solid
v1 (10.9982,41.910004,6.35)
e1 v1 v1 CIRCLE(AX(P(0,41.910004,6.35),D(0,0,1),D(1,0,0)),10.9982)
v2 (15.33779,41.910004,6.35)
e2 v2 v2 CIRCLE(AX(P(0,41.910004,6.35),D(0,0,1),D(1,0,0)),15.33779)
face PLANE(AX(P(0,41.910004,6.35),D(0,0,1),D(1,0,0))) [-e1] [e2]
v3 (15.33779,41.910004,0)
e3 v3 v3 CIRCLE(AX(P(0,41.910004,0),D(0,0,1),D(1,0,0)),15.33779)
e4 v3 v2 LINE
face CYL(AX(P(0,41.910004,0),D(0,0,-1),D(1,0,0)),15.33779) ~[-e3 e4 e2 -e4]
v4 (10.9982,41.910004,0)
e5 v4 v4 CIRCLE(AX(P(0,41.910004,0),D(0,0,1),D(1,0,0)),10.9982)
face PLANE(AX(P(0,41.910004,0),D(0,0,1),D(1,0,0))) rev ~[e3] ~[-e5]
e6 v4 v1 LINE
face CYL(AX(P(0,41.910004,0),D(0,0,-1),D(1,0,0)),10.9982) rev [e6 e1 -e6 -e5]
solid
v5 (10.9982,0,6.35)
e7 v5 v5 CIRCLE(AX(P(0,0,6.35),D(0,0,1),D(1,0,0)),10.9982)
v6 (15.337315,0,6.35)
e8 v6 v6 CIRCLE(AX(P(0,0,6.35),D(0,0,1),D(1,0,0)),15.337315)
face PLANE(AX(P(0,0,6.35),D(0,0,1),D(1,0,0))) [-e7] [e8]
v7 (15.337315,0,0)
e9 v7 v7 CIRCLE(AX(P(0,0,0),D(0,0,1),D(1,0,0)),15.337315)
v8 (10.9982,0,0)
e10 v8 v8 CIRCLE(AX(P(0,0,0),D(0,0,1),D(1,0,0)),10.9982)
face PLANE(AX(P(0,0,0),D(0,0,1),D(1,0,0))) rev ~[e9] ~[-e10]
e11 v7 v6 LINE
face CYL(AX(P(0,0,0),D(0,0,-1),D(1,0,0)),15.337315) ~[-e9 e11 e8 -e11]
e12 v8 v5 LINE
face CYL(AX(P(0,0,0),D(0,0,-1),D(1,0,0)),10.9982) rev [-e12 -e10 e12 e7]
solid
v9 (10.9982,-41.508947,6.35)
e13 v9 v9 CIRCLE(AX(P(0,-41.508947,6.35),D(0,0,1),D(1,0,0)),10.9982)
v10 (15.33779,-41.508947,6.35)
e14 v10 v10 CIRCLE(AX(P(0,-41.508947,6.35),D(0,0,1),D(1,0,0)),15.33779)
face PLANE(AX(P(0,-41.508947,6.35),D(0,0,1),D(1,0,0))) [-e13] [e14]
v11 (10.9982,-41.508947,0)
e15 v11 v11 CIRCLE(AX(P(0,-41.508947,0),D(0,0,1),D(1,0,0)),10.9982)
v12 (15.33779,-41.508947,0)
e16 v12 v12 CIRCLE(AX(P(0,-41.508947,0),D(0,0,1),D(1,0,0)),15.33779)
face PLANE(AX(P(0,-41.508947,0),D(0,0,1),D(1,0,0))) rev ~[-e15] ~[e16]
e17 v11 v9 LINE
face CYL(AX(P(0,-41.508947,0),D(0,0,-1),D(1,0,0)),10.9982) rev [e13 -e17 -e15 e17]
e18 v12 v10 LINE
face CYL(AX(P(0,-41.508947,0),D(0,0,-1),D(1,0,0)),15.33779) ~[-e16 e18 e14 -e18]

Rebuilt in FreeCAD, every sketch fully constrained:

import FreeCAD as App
import Part
import Sketcher

V = App.Vector
Q = App.Units.Quantity

doc = App.newDocument("Part")
body = doc.addObject("PartDesign::Body", "Body")
body.AllowCompound = True

# Sketch on XY plane
sketch1 = doc.addObject("Sketcher::SketchObject", "Sketch")
body.addObject(sketch1)
sketch1.AttachmentSupport = (doc.XY_Plane, [""])
sketch1.MapMode = "FlatFace"
sketch1.addGeometry(Part.Circle(V(0, 0, 0), V(0, 0, 1), 15), False)
sketch1.addGeometry(Part.Circle(V(0, 0, 0), V(0, 0, 1), 11), False)
sketch1.addGeometry(Part.Circle(V(0, 42, 0), V(0, 0, 1), 15), False)
sketch1.addGeometry(Part.Circle(V(0, 42, 0), V(0, 0, 1), 11), False)
sketch1.addGeometry(Part.Circle(V(0, -42, 0), V(0, 0, 1), 15), False)
sketch1.addGeometry(Part.Circle(V(0, -42, 0), V(0, 0, 1), 11), False)
sketch1.addConstraint(Sketcher.Constraint("Coincident", 0, 3, -1, 1))
sketch1.addConstraint(Sketcher.Constraint("Coincident", 1, 3, -1, 1))
sketch1.addConstraint(Sketcher.Constraint("Coincident", 3, 3, 2, 3))
sketch1.addConstraint(Sketcher.Constraint("Coincident", 5, 3, 4, 3))
sketch1.addConstraint(Sketcher.Constraint("Equal", 1, 3))
sketch1.addConstraint(Sketcher.Constraint("Equal", 2, 4))
sketch1.addConstraint(Sketcher.Constraint("Equal", 3, 5))
sketch1.addConstraint(Sketcher.Constraint("PointOnObject", 2, 3, -2))
sketch1.addConstraint(Sketcher.Constraint("PointOnObject", 4, 3, -2))
sketch1.addConstraint(Sketcher.Constraint("Diameter", 1, Q("0.866 in")))
sketch1.addConstraint(Sketcher.Constraint("Diameter", 2, Q("1.2077 in")))
sketch1.addConstraint(Sketcher.Constraint("DistanceY", -1, 1, 2, 3, Q("1.6500002 in")))
sketch1.addConstraint(Sketcher.Constraint("Diameter", 0, 30.67463))
sketch1.addConstraint(Sketcher.Constraint("DistanceY", 4, 3, 2, 3, 83.418951))
pad1 = doc.addObject("PartDesign::Pad", "Pad")
body.addObject(pad1)
pad1.Profile = sketch1
pad1.Length = Q("0.25 in")

doc.recompute()
